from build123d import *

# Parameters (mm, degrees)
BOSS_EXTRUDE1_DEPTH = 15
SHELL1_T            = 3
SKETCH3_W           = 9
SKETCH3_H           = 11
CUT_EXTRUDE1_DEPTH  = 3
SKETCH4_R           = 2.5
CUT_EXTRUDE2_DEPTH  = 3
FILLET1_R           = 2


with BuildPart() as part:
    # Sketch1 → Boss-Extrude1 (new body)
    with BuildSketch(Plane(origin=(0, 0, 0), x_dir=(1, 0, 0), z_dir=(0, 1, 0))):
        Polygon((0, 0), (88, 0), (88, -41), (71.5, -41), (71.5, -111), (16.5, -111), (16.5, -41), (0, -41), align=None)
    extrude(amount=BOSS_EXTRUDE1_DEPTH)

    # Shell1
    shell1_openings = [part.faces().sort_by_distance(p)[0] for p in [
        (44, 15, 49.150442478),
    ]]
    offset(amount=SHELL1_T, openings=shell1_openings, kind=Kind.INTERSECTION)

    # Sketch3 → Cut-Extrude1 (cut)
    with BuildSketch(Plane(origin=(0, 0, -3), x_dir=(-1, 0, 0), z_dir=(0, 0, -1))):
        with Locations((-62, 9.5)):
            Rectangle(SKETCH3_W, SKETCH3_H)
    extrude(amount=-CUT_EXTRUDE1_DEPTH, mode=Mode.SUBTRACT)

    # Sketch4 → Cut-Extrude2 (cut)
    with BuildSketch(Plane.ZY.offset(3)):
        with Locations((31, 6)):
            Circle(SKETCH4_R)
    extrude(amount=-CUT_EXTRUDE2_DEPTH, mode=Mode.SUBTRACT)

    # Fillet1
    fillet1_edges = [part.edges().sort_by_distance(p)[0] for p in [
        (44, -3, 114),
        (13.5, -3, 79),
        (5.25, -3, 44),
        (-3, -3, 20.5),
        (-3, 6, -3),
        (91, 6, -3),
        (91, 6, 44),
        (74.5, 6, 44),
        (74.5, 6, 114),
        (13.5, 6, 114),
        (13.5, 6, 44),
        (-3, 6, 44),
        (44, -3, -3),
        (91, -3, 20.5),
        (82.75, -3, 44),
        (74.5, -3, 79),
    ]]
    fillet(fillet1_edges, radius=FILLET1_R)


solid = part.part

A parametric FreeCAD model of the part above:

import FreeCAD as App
import Part
import Sketcher
Q = App.Units.Quantity


def edges_at(feature, points):
    """Names of the edges that pass closest to the given points."""
    edges = feature.Shape.Edges
    near = lambda p: min(range(len(edges)), key=lambda i: edges[i].distToShape(Part.Vertex(*p))[0])
    return sorted({f"Edge{near(p) + 1}" for p in points})


def faces_at(feature, points):
    """Names of the faces that lie closest to the given points."""
    faces = feature.Shape.Faces
    near = lambda p: min(range(len(faces)), key=lambda i: faces[i].distToShape(Part.Vertex(*p))[0])
    return sorted({f"Face{near(p) + 1}" for p in points})

doc = App.newDocument("Part")
body = doc.addObject("PartDesign::Body", "Body")

sketch1 = doc.addObject("Sketcher::SketchObject", "Sketch")
body.addObject(sketch1)
sketch1.AttachmentSupport = (doc.XZ_Plane, [""])
sketch1.MapMode = "FlatFace"
sketch1.addGeometry(Part.LineSegment(App.Vector(88, 0, 0), App.Vector(0, 0, 0)), False)
sketch1.addGeometry(Part.LineSegment(App.Vector(0, 0, 0), App.Vector(0, 41, 0)), False)
sketch1.addGeometry(Part.LineSegment(App.Vector(0, 41, 0), App.Vector(16, 41, 0)), False)
sketch1.addGeometry(Part.LineSegment(App.Vector(16, 41, 0), App.Vector(16, 111, 0)), False)
sketch1.addGeometry(Part.LineSegment(App.Vector(16, 111, 0), App.Vector(72, 111, 0)), False)
sketch1.addGeometry(Part.LineSegment(App.Vector(72, 111, 0), App.Vector(72, 41, 0)), False)
sketch1.addGeometry(Part.LineSegment(App.Vector(72, 41, 0), App.Vector(88, 41, 0)), False)
sketch1.addGeometry(Part.LineSegment(App.Vector(88, 41, 0), App.Vector(88, 0, 0)), False)
sketch1.addConstraint(Sketcher.Constraint("Coincident", 0, 2, 1, 1))
sketch1.addConstraint(Sketcher.Constraint("Coincident", 1, 2, 2, 1))
sketch1.addConstraint(Sketcher.Constraint("Coincident", 2, 2, 3, 1))
sketch1.addConstraint(Sketcher.Constraint("Coincident", 3, 2, 4, 1))
sketch1.addConstraint(Sketcher.Constraint("Coincident", 4, 2, 5, 1))
sketch1.addConstraint(Sketcher.Constraint("Coincident", 5, 2, 6, 1))
sketch1.addConstraint(Sketcher.Constraint("Coincident", 6, 2, 7, 1))
sketch1.addConstraint(Sketcher.Constraint("Coincident", 7, 2, 0, 1))
sketch1.addConstraint(Sketcher.Constraint("Horizontal", 0))
sketch1.addConstraint(Sketcher.Constraint("Vertical", 1))
sketch1.addConstraint(Sketcher.Constraint("Horizontal", 2))
sketch1.addConstraint(Sketcher.Constraint("Vertical", 3))
sketch1.addConstraint(Sketcher.Constraint("Horizontal", 4))
sketch1.addConstraint(Sketcher.Constraint("Vertical", 5))
sketch1.addConstraint(Sketcher.Constraint("Horizontal", 6))
sketch1.addConstraint(Sketcher.Constraint("Vertical", 7))
sketch1.addConstraint(Sketcher.Constraint("Coincident", 0, 2, -1, 1))
sketch1.addConstraint(Sketcher.Constraint("Horizontal", 2, 2, 5, 2))
sketch1.addConstraint(Sketcher.Constraint("Equal", 2, 6))
sketch1.addConstraint(Sketcher.Constraint("DistanceX", 0, 2, 0, 1, Q("88 mm")))
sketch1.addConstraint(Sketcher.Constraint("DistanceX", 4, 1, 4, 2, Q("55 mm")))
sketch1.addConstraint(Sketcher.Constraint("DistanceY", 1, 1, 1, 2, Q("41 mm")))
sketch1.addConstraint(Sketcher.Constraint("DistanceY", 3, 1, 3, 2, Q("70 mm")))
pad1 = doc.addObject("PartDesign::Pad", "Pad")
body.addObject(pad1)
pad1.Profile = sketch1
pad1.Length = 15
pad1.Reversed = True
doc.recompute()

thickness = doc.addObject("PartDesign::Thickness", "Thickness")
body.addObject(thickness)
thickness.Base = (pad1, faces_at(pad1, [(44, 15, 55.5)]))
thickness.Value = 3
thickness.Reversed = False
thickness.Join = "Intersection"

sketch2 = doc.addObject("Sketcher::SketchObject", "Sketch001")
body.addObject(sketch2)
sketch2.AttachmentSupport = (doc.XY_Plane, [""])
sketch2.MapMode = "FlatFace"
sketch2.AttachmentOffset = App.Placement(App.Vector(0, 0, -3), App.Rotation())
sketch2.addGeometry(Part.LineSegment(App.Vector(66, 15, 0), App.Vector(66, 4, 0)), False)
sketch2.addGeometry(Part.LineSegment(App.Vector(66, 4, 0), App.Vector(58, 4, 0)), False)
sketch2.addGeometry(Part.LineSegment(App.Vector(58, 4, 0), App.Vector(58, 15, 0)), False)
sketch2.addGeometry(Part.LineSegment(App.Vector(58, 15, 0), App.Vector(66, 15, 0)), False)
sketch2.addConstraint(Sketcher.Constraint("Coincident", 0, 2, 1, 1))
sketch2.addConstraint(Sketcher.Constraint("Coincident", 1, 2, 2, 1))
sketch2.addConstraint(Sketcher.Constraint("Coincident", 2, 2, 3, 1))
sketch2.addConstraint(Sketcher.Constraint("Coincident", 3, 2, 0, 1))
sketch2.addConstraint(Sketcher.Constraint("Vertical", 0))
sketch2.addConstraint(Sketcher.Constraint("Horizontal", 1))
sketch2.addConstraint(Sketcher.Constraint("Vertical", 2))
sketch2.addConstraint(Sketcher.Constraint("Horizontal", 3))
sketch2.addConstraint(Sketcher.Constraint("DistanceX", 1, 2, 1, 1, Q("9 mm")))
sketch2.addConstraint(Sketcher.Constraint("DistanceY", 0, 2, 0, 1, Q("11 mm")))
sketch2.addConstraint(Sketcher.Constraint("DistanceY", -1, 1, 0, 2, Q("4 mm")))
sketch2.addConstraint(Sketcher.Constraint("DistanceX", -1, 1, 0, 2, Q("66.5 mm")))
pocket1 = doc.addObject("PartDesign::Pocket", "Pocket")
body.addObject(pocket1)
pocket1.Profile = sketch2
pocket1.Length = 3
pocket1.Reversed = True

sketch3 = doc.addObject("Sketcher::SketchObject", "Sketch002")
body.addObject(sketch3)
sketch3.AttachmentSupport = (doc.YZ_Plane, [""])
sketch3.MapMode = "FlatFace"
sketch3.AttachmentOffset = App.Placement(App.Vector(0, 0, -3), App.Rotation())
sketch3.addGeometry(Part.Circle(App.Vector(6, 31, 0), App.Vector(0, 0, 1), 2.5), False)
sketch3.addConstraint(Sketcher.Constraint("Diameter", 0, Q("5 mm")))
sketch3.addConstraint(Sketcher.Constraint("DistanceX", -1, 1, 0, 3, Q("6 mm")))
sketch3.addConstraint(Sketcher.Constraint("DistanceY", -1, 1, 0, 3, Q("31 mm")))
pocket2 = doc.addObject("PartDesign::Pocket", "Pocket001")
body.addObject(pocket2)
pocket2.Profile = sketch3
pocket2.Length = 3
pocket2.Reversed = True
doc.recompute()

fillet = doc.addObject("PartDesign::Fillet", "Fillet")
body.addObject(fillet)
fillet.Base = (pocket2, edges_at(pocket2, [
    (44, -3, 114),
    (13.5, -3, 79),
    (5.25, -3, 44),
    (-3, -3, 20.5),
    (-3, 6, -3),
    (91, 6, -3),
    (91, 6, 44),
    (74.5, 6, 44),
    (74.5, 6, 114),
    (13.5, 6, 114),
    (13.5, 6, 44),
    (-3, 6, 44),
    (44, -3, -3),
    (91, -3, 20.5),
    (82.75, -3, 44),
    (74.5, -3, 79),
]))
fillet.Radius = 2

doc.recompute()
